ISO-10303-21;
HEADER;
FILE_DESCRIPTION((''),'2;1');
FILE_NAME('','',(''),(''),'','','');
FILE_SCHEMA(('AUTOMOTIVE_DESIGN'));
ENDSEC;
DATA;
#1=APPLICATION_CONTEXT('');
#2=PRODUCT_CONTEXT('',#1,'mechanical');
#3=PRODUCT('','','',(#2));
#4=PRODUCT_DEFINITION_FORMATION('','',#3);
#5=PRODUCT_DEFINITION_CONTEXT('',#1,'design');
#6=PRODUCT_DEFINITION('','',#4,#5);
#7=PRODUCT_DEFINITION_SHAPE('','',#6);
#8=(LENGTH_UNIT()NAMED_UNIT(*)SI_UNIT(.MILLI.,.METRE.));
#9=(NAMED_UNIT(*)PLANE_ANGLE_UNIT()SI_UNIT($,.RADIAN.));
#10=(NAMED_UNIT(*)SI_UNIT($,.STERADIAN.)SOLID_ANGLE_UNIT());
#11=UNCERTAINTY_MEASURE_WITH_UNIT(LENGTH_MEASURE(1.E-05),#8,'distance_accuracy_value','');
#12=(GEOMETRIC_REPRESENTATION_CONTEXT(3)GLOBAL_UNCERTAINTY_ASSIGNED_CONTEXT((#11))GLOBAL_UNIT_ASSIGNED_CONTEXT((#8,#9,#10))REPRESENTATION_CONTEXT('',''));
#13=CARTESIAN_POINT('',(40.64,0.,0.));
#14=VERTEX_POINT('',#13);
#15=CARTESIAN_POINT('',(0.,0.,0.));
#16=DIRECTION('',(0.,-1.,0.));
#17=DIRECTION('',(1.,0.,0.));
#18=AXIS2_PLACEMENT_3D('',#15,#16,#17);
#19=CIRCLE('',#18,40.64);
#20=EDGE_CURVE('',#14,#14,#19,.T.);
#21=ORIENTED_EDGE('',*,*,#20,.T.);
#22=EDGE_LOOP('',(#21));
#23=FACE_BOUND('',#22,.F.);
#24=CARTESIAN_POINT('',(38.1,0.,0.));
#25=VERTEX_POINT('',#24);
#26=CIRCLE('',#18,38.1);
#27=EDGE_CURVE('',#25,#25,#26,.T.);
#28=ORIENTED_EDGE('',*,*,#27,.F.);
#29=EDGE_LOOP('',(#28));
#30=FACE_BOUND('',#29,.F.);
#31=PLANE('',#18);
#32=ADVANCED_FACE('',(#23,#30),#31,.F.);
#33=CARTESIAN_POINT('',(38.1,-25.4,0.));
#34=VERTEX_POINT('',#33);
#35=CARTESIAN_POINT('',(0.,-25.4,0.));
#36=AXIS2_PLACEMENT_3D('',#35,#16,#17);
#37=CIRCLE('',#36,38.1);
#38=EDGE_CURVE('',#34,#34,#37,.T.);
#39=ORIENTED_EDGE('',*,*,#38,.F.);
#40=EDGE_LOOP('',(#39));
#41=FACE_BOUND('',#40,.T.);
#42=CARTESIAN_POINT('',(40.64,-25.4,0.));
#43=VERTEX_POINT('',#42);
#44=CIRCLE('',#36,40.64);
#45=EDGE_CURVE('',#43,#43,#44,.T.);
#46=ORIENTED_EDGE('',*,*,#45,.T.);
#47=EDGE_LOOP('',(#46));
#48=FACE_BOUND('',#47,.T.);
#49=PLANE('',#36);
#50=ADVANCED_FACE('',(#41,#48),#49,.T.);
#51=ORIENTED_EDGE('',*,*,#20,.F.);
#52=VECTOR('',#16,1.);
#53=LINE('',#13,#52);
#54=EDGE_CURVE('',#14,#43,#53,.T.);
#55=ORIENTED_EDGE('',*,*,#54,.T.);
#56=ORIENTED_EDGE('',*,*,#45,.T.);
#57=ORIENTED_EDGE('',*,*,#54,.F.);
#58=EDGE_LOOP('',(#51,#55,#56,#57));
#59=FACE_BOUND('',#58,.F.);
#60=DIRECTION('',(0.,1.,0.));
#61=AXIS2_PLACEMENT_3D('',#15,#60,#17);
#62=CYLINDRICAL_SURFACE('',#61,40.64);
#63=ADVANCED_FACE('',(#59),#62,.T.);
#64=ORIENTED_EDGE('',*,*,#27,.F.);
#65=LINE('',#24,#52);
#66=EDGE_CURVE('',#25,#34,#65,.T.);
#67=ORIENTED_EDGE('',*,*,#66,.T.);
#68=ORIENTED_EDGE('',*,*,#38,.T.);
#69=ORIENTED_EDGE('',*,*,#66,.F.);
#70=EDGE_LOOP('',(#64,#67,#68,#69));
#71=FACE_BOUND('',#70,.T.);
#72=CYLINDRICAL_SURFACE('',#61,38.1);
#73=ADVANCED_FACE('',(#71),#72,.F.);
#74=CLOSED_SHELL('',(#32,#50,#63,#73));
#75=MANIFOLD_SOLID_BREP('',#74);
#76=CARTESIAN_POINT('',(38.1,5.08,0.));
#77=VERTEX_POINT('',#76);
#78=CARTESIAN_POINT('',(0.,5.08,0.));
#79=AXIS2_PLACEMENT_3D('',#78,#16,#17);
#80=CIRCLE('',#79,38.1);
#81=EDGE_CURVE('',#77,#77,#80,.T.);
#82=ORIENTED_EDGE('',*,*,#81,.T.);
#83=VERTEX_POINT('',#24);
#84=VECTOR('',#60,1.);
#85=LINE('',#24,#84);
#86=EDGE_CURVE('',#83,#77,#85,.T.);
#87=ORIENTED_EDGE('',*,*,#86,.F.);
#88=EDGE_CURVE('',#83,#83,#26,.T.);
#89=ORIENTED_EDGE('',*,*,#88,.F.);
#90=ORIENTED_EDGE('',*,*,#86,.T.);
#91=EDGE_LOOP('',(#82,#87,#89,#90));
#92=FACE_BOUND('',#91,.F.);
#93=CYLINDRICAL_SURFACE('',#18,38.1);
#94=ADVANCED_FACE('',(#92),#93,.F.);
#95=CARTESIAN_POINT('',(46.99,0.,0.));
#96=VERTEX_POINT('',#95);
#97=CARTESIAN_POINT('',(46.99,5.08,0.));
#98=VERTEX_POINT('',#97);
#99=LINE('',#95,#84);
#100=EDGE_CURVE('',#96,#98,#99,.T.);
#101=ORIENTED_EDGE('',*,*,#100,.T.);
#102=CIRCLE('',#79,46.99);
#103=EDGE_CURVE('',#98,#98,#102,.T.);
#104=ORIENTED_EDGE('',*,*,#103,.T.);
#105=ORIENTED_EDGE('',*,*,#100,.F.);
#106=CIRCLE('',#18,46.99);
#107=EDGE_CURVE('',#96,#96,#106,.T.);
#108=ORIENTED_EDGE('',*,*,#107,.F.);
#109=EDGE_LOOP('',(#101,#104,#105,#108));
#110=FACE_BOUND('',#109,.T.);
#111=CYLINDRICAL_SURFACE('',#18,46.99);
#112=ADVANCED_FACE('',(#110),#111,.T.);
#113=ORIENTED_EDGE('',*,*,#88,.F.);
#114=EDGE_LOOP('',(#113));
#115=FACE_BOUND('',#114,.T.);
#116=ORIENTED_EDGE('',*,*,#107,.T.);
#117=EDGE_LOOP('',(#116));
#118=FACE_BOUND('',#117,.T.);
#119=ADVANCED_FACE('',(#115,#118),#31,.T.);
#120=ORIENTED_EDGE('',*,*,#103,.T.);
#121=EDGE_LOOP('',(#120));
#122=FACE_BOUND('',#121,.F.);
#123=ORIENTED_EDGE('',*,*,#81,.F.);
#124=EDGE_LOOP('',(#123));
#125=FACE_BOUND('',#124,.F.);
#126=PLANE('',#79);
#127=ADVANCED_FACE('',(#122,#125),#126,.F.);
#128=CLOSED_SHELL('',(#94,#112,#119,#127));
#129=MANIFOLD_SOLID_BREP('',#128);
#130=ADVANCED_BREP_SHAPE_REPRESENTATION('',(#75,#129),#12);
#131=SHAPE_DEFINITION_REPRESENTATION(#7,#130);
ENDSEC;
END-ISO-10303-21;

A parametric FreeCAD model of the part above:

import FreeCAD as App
import Part
import Sketcher

V = App.Vector
Q = App.Units.Quantity

doc = App.newDocument("Part")
body = doc.addObject("PartDesign::Body", "Body")

# Sketch on XZ plane
sketch1 = body.newObject("Sketcher::SketchObject", "Sketch")
sketch1.AttachmentSupport = (doc.getObject("XZ_Plane"), [""])
sketch1.MapMode = "FlatFace"
sketch1.addGeometry([
    Part.Circle(V(0, 0, 0), V(0, 0, 1), 41),
    Part.Circle(V(0, 0, 0), V(0, 0, 1), 38),
], False)
sketch1.addConstraint([
    Sketcher.Constraint("Coincident", 0, 3, -1, 1),
    Sketcher.Constraint("Coincident", 1, 3, -1, 1),
    Sketcher.Constraint("Diameter", 1, Q("3 in")),
    Sketcher.Constraint("Diameter", 0, Q("3.2 in")),
])
pad1 = body.newObject("PartDesign::Pad", "Pad")
pad1.Profile = sketch1
pad1.Length = Q("1 in")
body2 = doc.addObject("PartDesign::Body", "Body001")

# Sketch on XZ plane
sketch2 = body2.newObject("Sketcher::SketchObject", "Sketch001")
sketch2.AttachmentSupport = (doc.getObject("XZ_Plane001"), [""])
sketch2.MapMode = "FlatFace"
sketch2.addGeometry([
    Part.Circle(V(0, 0, 0), V(0, 0, 1), 47),
    Part.Circle(V(0, 0, 0), V(0, 0, 1), 38),
], False)
sketch2.addConstraint([
    Sketcher.Constraint("Coincident", 0, 3, -1, 1),
    Sketcher.Constraint("Coincident", 1, 3, -1, 1),
    Sketcher.Constraint("Diameter", 1, Q("3 in")),
    Sketcher.Constraint("Diameter", 0, Q("3.7 in")),
])
pad2 = body2.newObject("PartDesign::Pad", "Pad001")
pad2.Profile = sketch2
pad2.Length = Q("0.2 in")
pad2.Reversed = True

doc.recompute()
